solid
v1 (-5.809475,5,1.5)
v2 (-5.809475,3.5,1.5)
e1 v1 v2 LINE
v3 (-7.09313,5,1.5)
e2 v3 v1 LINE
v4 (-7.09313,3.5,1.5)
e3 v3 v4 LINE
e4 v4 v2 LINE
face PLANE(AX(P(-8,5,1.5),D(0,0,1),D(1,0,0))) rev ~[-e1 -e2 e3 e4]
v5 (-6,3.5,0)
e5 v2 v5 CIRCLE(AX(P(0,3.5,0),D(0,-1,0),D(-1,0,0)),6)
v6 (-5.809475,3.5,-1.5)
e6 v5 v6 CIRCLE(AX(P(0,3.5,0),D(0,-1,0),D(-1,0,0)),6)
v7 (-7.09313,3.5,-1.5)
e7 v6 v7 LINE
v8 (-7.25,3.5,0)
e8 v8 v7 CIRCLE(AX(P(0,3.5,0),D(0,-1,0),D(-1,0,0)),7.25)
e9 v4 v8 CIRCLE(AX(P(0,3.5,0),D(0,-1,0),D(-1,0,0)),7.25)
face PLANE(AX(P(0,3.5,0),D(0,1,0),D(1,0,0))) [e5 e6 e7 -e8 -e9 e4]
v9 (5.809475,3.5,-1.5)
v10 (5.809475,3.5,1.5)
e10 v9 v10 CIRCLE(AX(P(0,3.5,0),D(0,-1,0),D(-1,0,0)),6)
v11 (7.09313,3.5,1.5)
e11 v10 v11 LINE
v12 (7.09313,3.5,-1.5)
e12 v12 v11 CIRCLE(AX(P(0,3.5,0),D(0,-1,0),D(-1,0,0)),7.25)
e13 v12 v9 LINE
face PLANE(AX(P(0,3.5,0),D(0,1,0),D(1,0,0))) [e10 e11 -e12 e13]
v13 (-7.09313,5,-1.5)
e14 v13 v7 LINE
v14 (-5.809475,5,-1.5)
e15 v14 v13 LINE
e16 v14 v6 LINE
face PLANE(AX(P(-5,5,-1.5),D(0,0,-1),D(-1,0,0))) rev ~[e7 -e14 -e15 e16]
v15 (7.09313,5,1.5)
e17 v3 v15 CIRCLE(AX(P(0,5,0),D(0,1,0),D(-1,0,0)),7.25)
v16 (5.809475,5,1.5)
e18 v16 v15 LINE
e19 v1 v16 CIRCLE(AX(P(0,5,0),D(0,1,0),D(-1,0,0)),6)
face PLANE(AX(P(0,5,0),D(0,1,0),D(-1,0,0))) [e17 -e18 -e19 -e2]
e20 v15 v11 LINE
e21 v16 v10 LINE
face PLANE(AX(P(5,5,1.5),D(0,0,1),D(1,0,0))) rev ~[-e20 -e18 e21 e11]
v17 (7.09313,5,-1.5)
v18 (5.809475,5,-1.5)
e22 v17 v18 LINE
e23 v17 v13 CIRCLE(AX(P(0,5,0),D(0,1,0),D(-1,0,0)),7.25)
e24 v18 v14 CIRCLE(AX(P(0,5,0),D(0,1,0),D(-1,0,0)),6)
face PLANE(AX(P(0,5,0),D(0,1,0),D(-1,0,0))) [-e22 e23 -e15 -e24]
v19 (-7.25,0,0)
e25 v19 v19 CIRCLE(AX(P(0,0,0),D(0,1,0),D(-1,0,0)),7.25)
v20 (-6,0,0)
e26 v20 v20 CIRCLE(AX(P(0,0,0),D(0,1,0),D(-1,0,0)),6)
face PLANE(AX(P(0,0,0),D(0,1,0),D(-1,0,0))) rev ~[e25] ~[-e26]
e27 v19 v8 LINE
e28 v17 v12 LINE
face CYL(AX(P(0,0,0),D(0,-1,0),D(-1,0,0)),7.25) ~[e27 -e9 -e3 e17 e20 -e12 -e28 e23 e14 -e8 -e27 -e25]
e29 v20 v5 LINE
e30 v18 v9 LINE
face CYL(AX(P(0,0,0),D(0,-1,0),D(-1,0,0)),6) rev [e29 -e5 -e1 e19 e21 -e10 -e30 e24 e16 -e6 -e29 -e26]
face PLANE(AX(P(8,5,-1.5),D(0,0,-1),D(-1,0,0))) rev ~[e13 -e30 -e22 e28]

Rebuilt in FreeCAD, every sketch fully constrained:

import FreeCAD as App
import Part
import Sketcher
from FreeCAD import Vector
Q = App.Units.Quantity


def add_polygon(sketch, points):
    """Adds a closed chain of lines whose ends are joined by coincident constraints."""
    first, n = sketch.GeometryCount, len(points)
    for a, b in zip(points, points[1:] + points[:1]):
        sketch.addGeometry(Part.LineSegment(App.Vector(*a, 0), App.Vector(*b, 0)), False)
    for i in range(n):
        sketch.addConstraint(Sketcher.Constraint("Coincident", first + i, 2, first + (i + 1) % n, 1))

doc = App.newDocument("Part")
body = doc.addObject("PartDesign::Body", "Body")

sketch1 = body.newObject("Sketcher::SketchObject", "Sketch")
sketch1.AttachmentSupport = (doc.getObject("XZ_Plane"), [""])
sketch1.MapMode = "FlatFace"
sketch1.addGeometry([
    Part.Circle(Vector(0, 0, 0), Vector(0, 0, 1), 7),
    Part.Circle(Vector(0, 0, 0), Vector(0, 0, 1), 6),
], False)
sketch1.addConstraint([
    Sketcher.Constraint("Coincident", 0, 3, -1, 1),
    Sketcher.Constraint("Coincident", 1, 3, -1, 1),
    Sketcher.Constraint("Diameter", 1, Q("12 mm")),
    Sketcher.Constraint("Diameter", 0, Q("14.5 mm")),
])
pad1 = body.newObject("PartDesign::Pad", "Pad")
pad1.Profile = sketch1
pad1.Length = 5
pad1.Reversed = True

sketch2 = body.newObject("Sketcher::SketchObject", "Sketch001")
sketch2.AttachmentSupport = (doc.getObject("XZ_Plane"), [""])
sketch2.MapMode = "FlatFace"
sketch2.AttachmentOffset = App.Placement(Vector(0, 0, -5), App.Rotation())
add_polygon(sketch2, [(-8, -1.5), (-8, 1.5), (-5, 1.5), (-5, -1.5)])
add_polygon(sketch2, [(5, -1.5), (5, 1.5), (8, 1.5), (8, -1.5)])
sketch2.addConstraint([
    Sketcher.Constraint("Vertical", 0),
    Sketcher.Constraint("Horizontal", 1),
    Sketcher.Constraint("Vertical", 2),
    Sketcher.Constraint("Horizontal", 3),
    Sketcher.Constraint("Vertical", 4),
    Sketcher.Constraint("Horizontal", 5),
    Sketcher.Constraint("Vertical", 6),
    Sketcher.Constraint("Horizontal", 7),
    Sketcher.Constraint("Symmetric", 2, 2, 4, 2, -1, 1),
    Sketcher.Constraint("Symmetric", 0, 2, 6, 2, -1, 1),
    Sketcher.Constraint("Horizontal", 1, 2, 4, 2),
    Sketcher.Constraint("Equal", 7, 0),
    Sketcher.Constraint("DistanceX", 1, 1, 1, 2, Q("3 mm")),
    Sketcher.Constraint("DistanceX", 1, 2, -1, 1, Q("5 mm")),
])
pocket1 = body.newObject("PartDesign::Pocket", "Pocket")
pocket1.Profile = sketch2
pocket1.Length = 1.5
pocket1.Reversed = True

doc.recompute()
